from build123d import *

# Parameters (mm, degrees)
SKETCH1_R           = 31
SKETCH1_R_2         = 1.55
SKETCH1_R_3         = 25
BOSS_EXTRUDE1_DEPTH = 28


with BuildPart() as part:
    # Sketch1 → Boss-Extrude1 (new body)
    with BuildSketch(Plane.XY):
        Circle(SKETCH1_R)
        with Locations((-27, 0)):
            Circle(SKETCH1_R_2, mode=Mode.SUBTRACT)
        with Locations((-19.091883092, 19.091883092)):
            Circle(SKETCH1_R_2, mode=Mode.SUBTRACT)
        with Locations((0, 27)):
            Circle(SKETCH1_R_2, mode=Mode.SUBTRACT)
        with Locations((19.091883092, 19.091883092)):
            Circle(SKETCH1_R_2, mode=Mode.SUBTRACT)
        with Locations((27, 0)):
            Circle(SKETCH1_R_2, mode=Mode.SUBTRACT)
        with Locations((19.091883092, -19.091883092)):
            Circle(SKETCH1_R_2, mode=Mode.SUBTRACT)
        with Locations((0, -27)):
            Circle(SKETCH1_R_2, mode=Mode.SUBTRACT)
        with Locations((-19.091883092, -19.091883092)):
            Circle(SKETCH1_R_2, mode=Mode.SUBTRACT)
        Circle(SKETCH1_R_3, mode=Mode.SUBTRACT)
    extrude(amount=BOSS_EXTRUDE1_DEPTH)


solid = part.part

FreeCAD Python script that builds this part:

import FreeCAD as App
import Part
import Sketcher
Q = App.Units.Quantity

doc = App.newDocument("Part")
body = doc.addObject("PartDesign::Body", "Body")

# Sketch on XY plane
sketch1 = body.newObject("Sketcher::SketchObject", "Sketch")
sketch1.AttachmentSupport = (doc.getObject("XY_Plane"), [""])
sketch1.MapMode = "FlatFace"
sketch1.addGeometry([
    Part.Circle(App.Vector(0, 0, 0), App.Vector(0, 0, 1), 31),  # 0
    Part.Circle(App.Vector(-19.1, -19.1, 0), App.Vector(0, 0, 1), 1.6),  # 1
    Part.Circle(App.Vector(0, -27, 0), App.Vector(0, 0, 1), 1.6),  # 2
    Part.Circle(App.Vector(19.1, -19.1, 0), App.Vector(0, 0, 1), 1.6),  # 3
    Part.Circle(App.Vector(-27, 0, 0), App.Vector(0, 0, 1), 1.6),  # 4
    Part.Circle(App.Vector(-19.1, 19.1, 0), App.Vector(0, 0, 1), 1.6),  # 5
    Part.Circle(App.Vector(0, 0, 0), App.Vector(0, 0, 1), 25),  # 6
    Part.Circle(App.Vector(27, 0, 0), App.Vector(0, 0, 1), 1.6),  # 7
    Part.Circle(App.Vector(0, 27, 0), App.Vector(0, 0, 1), 1.6),  # 8
    Part.Circle(App.Vector(19.1, 19.1, 0), App.Vector(0, 0, 1), 1.6),  # 9
], False)
sketch1.addConstraint([
    Sketcher.Constraint("Coincident", 0, 3, -1, 1),
    Sketcher.Constraint("Coincident", 6, 3, -1, 1),
    Sketcher.Constraint("Equal", 1, 2),
    Sketcher.Constraint("Equal", 2, 3),
    Sketcher.Constraint("Equal", 3, 4),
    Sketcher.Constraint("Equal", 4, 5),
    Sketcher.Constraint("Equal", 5, 7),
    Sketcher.Constraint("Equal", 7, 8),
    Sketcher.Constraint("Equal", 8, 9),
    Sketcher.Constraint("Symmetric", 3, 3, 5, 3, -1, 1),
    Sketcher.Constraint("Symmetric", 4, 3, 7, 3, -1, 1),
    Sketcher.Constraint("Symmetric", 2, 3, 8, 3, -1, 1),
    Sketcher.Constraint("Symmetric", 1, 3, 9, 3, -1, 1),
    Sketcher.Constraint("Symmetric", 1, 3, 3, 3, -2),
    Sketcher.Constraint("PointOnObject", 2, 3, -2),
    Sketcher.Constraint("PointOnObject", 4, 3, -1),
    Sketcher.Constraint("Diameter", 0, Q("62 mm")),
    Sketcher.Constraint("Diameter", 6, Q("50 mm")),
    Sketcher.Constraint("Diameter", 1, Q("3.1 mm")),
    Sketcher.Constraint("DistanceY", 2, 3, -1, 1, Q("27 mm")),
    Sketcher.Constraint("DistanceX", 4, 3, -1, 1, Q("27 mm")),
    Sketcher.Constraint("DistanceX", 1, 3, -1, 1, Q("19.091883 mm")),
    Sketcher.Constraint("DistanceY", 1, 3, -1, 1, Q("19.091883 mm")),
])
pad1 = body.newObject("PartDesign::Pad", "Pad")
pad1.Profile = sketch1
pad1.Length = 28

doc.recompute()
